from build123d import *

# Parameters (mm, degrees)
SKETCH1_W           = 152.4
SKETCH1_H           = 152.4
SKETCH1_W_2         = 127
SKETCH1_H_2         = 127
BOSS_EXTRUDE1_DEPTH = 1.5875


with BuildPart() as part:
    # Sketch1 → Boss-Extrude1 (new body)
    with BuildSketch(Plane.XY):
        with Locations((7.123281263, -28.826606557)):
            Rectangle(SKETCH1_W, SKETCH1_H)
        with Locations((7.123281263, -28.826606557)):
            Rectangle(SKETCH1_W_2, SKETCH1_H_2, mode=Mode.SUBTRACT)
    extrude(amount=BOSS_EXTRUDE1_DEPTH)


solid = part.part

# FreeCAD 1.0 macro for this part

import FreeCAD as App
import Part
import Sketcher

V = App.Vector
Q = App.Units.Quantity


def add_polygon(sketch, points):
    """Adds a closed chain of lines whose ends are joined by coincident constraints."""
    first, n = sketch.GeometryCount, len(points)
    for a, b in zip(points, points[1:] + points[:1]):
        sketch.addGeometry(Part.LineSegment(App.Vector(*a, 0), App.Vector(*b, 0)), False)
    for i in range(n):
        sketch.addConstraint(Sketcher.Constraint("Coincident", first + i, 2, first + (i + 1) % n, 1))

doc = App.newDocument("Part")
body = doc.addObject("PartDesign::Body", "Body")

sketch1 = doc.addObject("Sketcher::SketchObject", "Sketch")
body.addObject(sketch1)
sketch1.AttachmentSupport = (doc.XY_Plane, [""])
sketch1.MapMode = "FlatFace"
add_polygon(sketch1, [(-69, 47), (-69, -105), (83, -105), (83, 47)])
add_polygon(sketch1, [(71, -92), (-56, -92), (-56, 35), (71, 35)])
sketch1.addConstraint([
    Sketcher.Constraint("Vertical", 0),
    Sketcher.Constraint("Horizontal", 1),
    Sketcher.Constraint("Vertical", 2),
    Sketcher.Constraint("Horizontal", 3),
    Sketcher.Constraint("Horizontal", 4),
    Sketcher.Constraint("Vertical", 5),
    Sketcher.Constraint("Horizontal", 6),
    Sketcher.Constraint("Vertical", 7),
    Sketcher.Constraint("Equal", 3, 0),
    Sketcher.Constraint("Equal", 6, 5),
    Sketcher.Constraint("DistanceX", 1, 1, 1, 2, Q("6 in")),
    Sketcher.Constraint("DistanceX", 4, 2, 4, 1, Q("5 in")),
    Sketcher.Constraint("DistanceX", 0, 2, 4, 2, Q("0.5 in")),
    Sketcher.Constraint("DistanceY", 0, 2, 4, 2, Q("0.5 in")),
    Sketcher.Constraint("DistanceX", 0, 2, -1, 1, Q("69.076719 mm")),
    Sketcher.Constraint("DistanceY", 0, 2, -1, 1, Q("105.026607 mm")),
])
pad1 = doc.addObject("PartDesign::Pad", "Pad")
body.addObject(pad1)
pad1.Profile = sketch1
pad1.Length = Q("0.0625 in")

doc.recompute()
